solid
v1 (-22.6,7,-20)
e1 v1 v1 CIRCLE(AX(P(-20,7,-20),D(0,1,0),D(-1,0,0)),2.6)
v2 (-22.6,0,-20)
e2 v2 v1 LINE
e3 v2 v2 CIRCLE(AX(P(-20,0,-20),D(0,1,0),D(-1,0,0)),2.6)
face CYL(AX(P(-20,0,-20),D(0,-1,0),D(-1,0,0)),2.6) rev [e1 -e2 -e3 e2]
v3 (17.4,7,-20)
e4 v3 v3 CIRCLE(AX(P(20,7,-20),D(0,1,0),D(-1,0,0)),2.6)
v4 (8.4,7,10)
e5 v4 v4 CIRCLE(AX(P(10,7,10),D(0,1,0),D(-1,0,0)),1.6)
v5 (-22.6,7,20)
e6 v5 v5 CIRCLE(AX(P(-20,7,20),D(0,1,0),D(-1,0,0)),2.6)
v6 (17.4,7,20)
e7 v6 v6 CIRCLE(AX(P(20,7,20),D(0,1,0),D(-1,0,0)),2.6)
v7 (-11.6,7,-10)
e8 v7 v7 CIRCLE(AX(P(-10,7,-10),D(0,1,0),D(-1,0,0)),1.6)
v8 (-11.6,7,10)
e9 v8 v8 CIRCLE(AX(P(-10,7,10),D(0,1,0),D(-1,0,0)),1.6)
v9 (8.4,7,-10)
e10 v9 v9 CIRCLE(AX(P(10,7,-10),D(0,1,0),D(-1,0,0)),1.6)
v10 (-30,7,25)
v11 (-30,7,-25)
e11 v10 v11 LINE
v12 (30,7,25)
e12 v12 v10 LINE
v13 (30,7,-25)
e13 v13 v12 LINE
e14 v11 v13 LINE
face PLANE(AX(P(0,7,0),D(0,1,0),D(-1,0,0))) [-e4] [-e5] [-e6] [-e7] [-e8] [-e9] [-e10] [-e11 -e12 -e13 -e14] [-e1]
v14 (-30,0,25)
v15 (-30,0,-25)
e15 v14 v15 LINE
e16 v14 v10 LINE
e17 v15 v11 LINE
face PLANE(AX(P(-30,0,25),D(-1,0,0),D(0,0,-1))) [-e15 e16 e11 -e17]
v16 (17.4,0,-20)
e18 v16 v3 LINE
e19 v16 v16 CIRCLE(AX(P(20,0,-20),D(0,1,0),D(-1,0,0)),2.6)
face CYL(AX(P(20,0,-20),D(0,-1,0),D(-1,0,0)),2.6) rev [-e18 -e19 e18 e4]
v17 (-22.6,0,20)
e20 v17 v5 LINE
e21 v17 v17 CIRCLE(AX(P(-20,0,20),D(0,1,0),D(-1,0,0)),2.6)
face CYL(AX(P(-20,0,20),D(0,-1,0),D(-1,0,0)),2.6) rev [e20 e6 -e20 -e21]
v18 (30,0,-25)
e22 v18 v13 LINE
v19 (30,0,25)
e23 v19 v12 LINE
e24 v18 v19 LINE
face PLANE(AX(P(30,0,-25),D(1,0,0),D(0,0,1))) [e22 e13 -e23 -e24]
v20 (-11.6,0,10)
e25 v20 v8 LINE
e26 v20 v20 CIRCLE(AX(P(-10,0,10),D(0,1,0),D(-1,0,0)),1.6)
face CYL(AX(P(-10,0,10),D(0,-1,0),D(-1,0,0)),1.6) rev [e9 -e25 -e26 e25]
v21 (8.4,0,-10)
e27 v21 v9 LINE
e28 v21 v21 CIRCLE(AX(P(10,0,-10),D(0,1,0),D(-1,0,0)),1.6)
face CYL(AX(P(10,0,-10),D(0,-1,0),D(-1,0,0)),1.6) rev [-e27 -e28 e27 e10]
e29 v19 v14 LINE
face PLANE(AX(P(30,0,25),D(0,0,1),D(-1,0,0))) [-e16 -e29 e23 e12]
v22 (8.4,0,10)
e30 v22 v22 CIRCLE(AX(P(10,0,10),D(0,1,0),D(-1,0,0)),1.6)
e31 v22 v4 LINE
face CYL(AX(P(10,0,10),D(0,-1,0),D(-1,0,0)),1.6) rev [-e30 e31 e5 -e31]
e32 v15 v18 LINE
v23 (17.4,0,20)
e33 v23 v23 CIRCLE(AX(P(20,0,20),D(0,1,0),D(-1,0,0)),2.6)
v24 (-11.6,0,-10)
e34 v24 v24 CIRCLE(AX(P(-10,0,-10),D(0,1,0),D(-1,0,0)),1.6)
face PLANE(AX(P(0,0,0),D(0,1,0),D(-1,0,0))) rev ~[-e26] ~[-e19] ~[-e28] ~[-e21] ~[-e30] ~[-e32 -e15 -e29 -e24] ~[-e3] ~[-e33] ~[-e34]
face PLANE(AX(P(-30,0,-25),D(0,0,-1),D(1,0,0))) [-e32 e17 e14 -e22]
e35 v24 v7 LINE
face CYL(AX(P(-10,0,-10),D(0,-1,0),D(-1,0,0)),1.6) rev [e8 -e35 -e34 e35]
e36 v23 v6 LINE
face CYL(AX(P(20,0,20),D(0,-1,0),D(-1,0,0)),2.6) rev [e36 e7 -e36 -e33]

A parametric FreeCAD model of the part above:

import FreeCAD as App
import Part
import Sketcher
from FreeCAD import Vector


def add_polygon(sketch, points):
    """Adds a closed chain of lines whose ends are joined by coincident constraints."""
    first, n = sketch.GeometryCount, len(points)
    for a, b in zip(points, points[1:] + points[:1]):
        sketch.addGeometry(Part.LineSegment(App.Vector(*a, 0), App.Vector(*b, 0)), False)
    for i in range(n):
        sketch.addConstraint(Sketcher.Constraint("Coincident", first + i, 2, first + (i + 1) % n, 1))

doc = App.newDocument("Part")
body = doc.addObject("PartDesign::Body", "Body")

sketch1 = body.newObject("Sketcher::SketchObject", "Sketch")
sketch1.AttachmentSupport = (doc.getObject("XZ_Plane"), [""])
sketch1.MapMode = "FlatFace"
add_polygon(sketch1, [(-30, 25), (30, 25), (30, -25), (-30, -25)])
sketch1.addGeometry(Part.Circle(Vector(20, -20, 0), Vector(0, 0, 1), 2.6), False)
sketch1.addGeometry(Part.Circle(Vector(10, -10, 0), Vector(0, 0, 1), 1.6), False)
sketch1.addGeometry(Part.Circle(Vector(-20, -20, 0), Vector(0, 0, 1), 2.6), False)
sketch1.addGeometry(Part.Circle(Vector(-10, -10, 0), Vector(0, 0, 1), 1.6), False)
sketch1.addGeometry(Part.Circle(Vector(10, 10, 0), Vector(0, 0, 1), 1.6), False)
sketch1.addGeometry(Part.Circle(Vector(20, 20, 0), Vector(0, 0, 1), 2.6), False)
sketch1.addGeometry(Part.Circle(Vector(-10, 10, 0), Vector(0, 0, 1), 1.6), False)
sketch1.addGeometry(Part.Circle(Vector(-20, 20, 0), Vector(0, 0, 1), 2.6), False)
sketch1.addConstraint(Sketcher.Constraint("Horizontal", 0))
sketch1.addConstraint(Sketcher.Constraint("Vertical", 1))
sketch1.addConstraint(Sketcher.Constraint("Horizontal", 2))
sketch1.addConstraint(Sketcher.Constraint("Vertical", 3))
sketch1.addConstraint(Sketcher.Constraint("Equal", 4, 6))
sketch1.addConstraint(Sketcher.Constraint("Equal", 5, 7))
sketch1.addConstraint(Sketcher.Constraint("Equal", 7, 8))
sketch1.addConstraint(Sketcher.Constraint("Equal", 6, 9))
sketch1.addConstraint(Sketcher.Constraint("Equal", 8, 10))
sketch1.addConstraint(Sketcher.Constraint("Equal", 9, 11))
sketch1.addConstraint(Sketcher.Constraint("Symmetric", 7, 3, 8, 3, -1, 1))
sketch1.addConstraint(Sketcher.Constraint("Symmetric", 6, 3, 9, 3, -1, 1))
sketch1.addConstraint(Sketcher.Constraint("Symmetric", 5, 3, 10, 3, -1, 1))
sketch1.addConstraint(Sketcher.Constraint("Symmetric", 4, 3, 11, 3, -1, 1))
sketch1.addConstraint(Sketcher.Constraint("Symmetric", 0, 2, 2, 2, -1, 1))
sketch1.addConstraint(Sketcher.Constraint("Symmetric", 4, 3, 6, 3, -2))
sketch1.addConstraint(Sketcher.Constraint("Symmetric", 5, 3, 7, 3, -2))
sketch1.addConstraint(Sketcher.Constraint("Diameter", 4, 5.2))
sketch1.addConstraint(Sketcher.Constraint("Diameter", 5, 3.2))
sketch1.addConstraint(Sketcher.Constraint("DistanceX", 0, 1, 0, 2, 60.0))
sketch1.addConstraint(Sketcher.Constraint("DistanceY", 1, 2, 1, 1, 50.0))
sketch1.addConstraint(Sketcher.Constraint("DistanceX", -1, 1, 4, 3, 20.0))
sketch1.addConstraint(Sketcher.Constraint("DistanceY", 4, 3, -1, 1, 20.0))
sketch1.addConstraint(Sketcher.Constraint("DistanceX", 7, 3, 5, 3, 20.0))
sketch1.addConstraint(Sketcher.Constraint("DistanceY", 5, 3, 8, 3, 20.0))
pad1 = body.newObject("PartDesign::Pad", "Pad")
pad1.Profile = sketch1
pad1.Length = 7
pad1.Reversed = True

doc.recompute()
